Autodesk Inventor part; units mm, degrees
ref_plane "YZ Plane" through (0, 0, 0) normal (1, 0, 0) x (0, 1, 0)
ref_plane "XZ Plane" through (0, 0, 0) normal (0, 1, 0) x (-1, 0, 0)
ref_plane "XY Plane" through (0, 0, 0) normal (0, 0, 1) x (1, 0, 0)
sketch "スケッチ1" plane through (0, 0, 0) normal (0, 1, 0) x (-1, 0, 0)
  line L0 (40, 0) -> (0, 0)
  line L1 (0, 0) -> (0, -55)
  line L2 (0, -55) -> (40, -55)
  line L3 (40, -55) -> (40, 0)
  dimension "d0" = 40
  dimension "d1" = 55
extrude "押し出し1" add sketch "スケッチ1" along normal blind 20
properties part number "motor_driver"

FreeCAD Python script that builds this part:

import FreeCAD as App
import Part
import Sketcher
Q = App.Units.Quantity

doc = App.newDocument("Part")
body = doc.addObject("PartDesign::Body", "Body")

# Sketch on XZ plane
sketch1 = body.newObject("Sketcher::SketchObject", "Sketch")
sketch1.AttachmentSupport = (doc.getObject("XZ_Plane"), [""])
sketch1.MapMode = "FlatFace"
sketch1.addGeometry([
    Part.LineSegment(App.Vector(-40, -55, 0), App.Vector(-40, 0, 0)),
    Part.LineSegment(App.Vector(-40, 0, 0), App.Vector(0, 0, 0)),
    Part.LineSegment(App.Vector(0, 0, 0), App.Vector(0, -55, 0)),
    Part.LineSegment(App.Vector(0, -55, 0), App.Vector(-40, -55, 0)),
], False)
sketch1.addConstraint([
    Sketcher.Constraint("Coincident", 0, 2, 1, 1),
    Sketcher.Constraint("Coincident", 1, 2, 2, 1),
    Sketcher.Constraint("Coincident", 2, 2, 3, 1),
    Sketcher.Constraint("Coincident", 3, 2, 0, 1),
    Sketcher.Constraint("Vertical", 0),
    Sketcher.Constraint("Horizontal", 1),
    Sketcher.Constraint("Vertical", 2),
    Sketcher.Constraint("Horizontal", 3),
    Sketcher.Constraint("Coincident", 1, 2, -1, 1),
    Sketcher.Constraint("DistanceX", 1, 1, 1, 2, Q("40 mm")),
    Sketcher.Constraint("DistanceY", 0, 1, 0, 2, Q("55 mm")),
])
pad1 = body.newObject("PartDesign::Pad", "Pad")
pad1.Profile = sketch1
pad1.Length = 20
pad1.Reversed = True

doc.recompute()
